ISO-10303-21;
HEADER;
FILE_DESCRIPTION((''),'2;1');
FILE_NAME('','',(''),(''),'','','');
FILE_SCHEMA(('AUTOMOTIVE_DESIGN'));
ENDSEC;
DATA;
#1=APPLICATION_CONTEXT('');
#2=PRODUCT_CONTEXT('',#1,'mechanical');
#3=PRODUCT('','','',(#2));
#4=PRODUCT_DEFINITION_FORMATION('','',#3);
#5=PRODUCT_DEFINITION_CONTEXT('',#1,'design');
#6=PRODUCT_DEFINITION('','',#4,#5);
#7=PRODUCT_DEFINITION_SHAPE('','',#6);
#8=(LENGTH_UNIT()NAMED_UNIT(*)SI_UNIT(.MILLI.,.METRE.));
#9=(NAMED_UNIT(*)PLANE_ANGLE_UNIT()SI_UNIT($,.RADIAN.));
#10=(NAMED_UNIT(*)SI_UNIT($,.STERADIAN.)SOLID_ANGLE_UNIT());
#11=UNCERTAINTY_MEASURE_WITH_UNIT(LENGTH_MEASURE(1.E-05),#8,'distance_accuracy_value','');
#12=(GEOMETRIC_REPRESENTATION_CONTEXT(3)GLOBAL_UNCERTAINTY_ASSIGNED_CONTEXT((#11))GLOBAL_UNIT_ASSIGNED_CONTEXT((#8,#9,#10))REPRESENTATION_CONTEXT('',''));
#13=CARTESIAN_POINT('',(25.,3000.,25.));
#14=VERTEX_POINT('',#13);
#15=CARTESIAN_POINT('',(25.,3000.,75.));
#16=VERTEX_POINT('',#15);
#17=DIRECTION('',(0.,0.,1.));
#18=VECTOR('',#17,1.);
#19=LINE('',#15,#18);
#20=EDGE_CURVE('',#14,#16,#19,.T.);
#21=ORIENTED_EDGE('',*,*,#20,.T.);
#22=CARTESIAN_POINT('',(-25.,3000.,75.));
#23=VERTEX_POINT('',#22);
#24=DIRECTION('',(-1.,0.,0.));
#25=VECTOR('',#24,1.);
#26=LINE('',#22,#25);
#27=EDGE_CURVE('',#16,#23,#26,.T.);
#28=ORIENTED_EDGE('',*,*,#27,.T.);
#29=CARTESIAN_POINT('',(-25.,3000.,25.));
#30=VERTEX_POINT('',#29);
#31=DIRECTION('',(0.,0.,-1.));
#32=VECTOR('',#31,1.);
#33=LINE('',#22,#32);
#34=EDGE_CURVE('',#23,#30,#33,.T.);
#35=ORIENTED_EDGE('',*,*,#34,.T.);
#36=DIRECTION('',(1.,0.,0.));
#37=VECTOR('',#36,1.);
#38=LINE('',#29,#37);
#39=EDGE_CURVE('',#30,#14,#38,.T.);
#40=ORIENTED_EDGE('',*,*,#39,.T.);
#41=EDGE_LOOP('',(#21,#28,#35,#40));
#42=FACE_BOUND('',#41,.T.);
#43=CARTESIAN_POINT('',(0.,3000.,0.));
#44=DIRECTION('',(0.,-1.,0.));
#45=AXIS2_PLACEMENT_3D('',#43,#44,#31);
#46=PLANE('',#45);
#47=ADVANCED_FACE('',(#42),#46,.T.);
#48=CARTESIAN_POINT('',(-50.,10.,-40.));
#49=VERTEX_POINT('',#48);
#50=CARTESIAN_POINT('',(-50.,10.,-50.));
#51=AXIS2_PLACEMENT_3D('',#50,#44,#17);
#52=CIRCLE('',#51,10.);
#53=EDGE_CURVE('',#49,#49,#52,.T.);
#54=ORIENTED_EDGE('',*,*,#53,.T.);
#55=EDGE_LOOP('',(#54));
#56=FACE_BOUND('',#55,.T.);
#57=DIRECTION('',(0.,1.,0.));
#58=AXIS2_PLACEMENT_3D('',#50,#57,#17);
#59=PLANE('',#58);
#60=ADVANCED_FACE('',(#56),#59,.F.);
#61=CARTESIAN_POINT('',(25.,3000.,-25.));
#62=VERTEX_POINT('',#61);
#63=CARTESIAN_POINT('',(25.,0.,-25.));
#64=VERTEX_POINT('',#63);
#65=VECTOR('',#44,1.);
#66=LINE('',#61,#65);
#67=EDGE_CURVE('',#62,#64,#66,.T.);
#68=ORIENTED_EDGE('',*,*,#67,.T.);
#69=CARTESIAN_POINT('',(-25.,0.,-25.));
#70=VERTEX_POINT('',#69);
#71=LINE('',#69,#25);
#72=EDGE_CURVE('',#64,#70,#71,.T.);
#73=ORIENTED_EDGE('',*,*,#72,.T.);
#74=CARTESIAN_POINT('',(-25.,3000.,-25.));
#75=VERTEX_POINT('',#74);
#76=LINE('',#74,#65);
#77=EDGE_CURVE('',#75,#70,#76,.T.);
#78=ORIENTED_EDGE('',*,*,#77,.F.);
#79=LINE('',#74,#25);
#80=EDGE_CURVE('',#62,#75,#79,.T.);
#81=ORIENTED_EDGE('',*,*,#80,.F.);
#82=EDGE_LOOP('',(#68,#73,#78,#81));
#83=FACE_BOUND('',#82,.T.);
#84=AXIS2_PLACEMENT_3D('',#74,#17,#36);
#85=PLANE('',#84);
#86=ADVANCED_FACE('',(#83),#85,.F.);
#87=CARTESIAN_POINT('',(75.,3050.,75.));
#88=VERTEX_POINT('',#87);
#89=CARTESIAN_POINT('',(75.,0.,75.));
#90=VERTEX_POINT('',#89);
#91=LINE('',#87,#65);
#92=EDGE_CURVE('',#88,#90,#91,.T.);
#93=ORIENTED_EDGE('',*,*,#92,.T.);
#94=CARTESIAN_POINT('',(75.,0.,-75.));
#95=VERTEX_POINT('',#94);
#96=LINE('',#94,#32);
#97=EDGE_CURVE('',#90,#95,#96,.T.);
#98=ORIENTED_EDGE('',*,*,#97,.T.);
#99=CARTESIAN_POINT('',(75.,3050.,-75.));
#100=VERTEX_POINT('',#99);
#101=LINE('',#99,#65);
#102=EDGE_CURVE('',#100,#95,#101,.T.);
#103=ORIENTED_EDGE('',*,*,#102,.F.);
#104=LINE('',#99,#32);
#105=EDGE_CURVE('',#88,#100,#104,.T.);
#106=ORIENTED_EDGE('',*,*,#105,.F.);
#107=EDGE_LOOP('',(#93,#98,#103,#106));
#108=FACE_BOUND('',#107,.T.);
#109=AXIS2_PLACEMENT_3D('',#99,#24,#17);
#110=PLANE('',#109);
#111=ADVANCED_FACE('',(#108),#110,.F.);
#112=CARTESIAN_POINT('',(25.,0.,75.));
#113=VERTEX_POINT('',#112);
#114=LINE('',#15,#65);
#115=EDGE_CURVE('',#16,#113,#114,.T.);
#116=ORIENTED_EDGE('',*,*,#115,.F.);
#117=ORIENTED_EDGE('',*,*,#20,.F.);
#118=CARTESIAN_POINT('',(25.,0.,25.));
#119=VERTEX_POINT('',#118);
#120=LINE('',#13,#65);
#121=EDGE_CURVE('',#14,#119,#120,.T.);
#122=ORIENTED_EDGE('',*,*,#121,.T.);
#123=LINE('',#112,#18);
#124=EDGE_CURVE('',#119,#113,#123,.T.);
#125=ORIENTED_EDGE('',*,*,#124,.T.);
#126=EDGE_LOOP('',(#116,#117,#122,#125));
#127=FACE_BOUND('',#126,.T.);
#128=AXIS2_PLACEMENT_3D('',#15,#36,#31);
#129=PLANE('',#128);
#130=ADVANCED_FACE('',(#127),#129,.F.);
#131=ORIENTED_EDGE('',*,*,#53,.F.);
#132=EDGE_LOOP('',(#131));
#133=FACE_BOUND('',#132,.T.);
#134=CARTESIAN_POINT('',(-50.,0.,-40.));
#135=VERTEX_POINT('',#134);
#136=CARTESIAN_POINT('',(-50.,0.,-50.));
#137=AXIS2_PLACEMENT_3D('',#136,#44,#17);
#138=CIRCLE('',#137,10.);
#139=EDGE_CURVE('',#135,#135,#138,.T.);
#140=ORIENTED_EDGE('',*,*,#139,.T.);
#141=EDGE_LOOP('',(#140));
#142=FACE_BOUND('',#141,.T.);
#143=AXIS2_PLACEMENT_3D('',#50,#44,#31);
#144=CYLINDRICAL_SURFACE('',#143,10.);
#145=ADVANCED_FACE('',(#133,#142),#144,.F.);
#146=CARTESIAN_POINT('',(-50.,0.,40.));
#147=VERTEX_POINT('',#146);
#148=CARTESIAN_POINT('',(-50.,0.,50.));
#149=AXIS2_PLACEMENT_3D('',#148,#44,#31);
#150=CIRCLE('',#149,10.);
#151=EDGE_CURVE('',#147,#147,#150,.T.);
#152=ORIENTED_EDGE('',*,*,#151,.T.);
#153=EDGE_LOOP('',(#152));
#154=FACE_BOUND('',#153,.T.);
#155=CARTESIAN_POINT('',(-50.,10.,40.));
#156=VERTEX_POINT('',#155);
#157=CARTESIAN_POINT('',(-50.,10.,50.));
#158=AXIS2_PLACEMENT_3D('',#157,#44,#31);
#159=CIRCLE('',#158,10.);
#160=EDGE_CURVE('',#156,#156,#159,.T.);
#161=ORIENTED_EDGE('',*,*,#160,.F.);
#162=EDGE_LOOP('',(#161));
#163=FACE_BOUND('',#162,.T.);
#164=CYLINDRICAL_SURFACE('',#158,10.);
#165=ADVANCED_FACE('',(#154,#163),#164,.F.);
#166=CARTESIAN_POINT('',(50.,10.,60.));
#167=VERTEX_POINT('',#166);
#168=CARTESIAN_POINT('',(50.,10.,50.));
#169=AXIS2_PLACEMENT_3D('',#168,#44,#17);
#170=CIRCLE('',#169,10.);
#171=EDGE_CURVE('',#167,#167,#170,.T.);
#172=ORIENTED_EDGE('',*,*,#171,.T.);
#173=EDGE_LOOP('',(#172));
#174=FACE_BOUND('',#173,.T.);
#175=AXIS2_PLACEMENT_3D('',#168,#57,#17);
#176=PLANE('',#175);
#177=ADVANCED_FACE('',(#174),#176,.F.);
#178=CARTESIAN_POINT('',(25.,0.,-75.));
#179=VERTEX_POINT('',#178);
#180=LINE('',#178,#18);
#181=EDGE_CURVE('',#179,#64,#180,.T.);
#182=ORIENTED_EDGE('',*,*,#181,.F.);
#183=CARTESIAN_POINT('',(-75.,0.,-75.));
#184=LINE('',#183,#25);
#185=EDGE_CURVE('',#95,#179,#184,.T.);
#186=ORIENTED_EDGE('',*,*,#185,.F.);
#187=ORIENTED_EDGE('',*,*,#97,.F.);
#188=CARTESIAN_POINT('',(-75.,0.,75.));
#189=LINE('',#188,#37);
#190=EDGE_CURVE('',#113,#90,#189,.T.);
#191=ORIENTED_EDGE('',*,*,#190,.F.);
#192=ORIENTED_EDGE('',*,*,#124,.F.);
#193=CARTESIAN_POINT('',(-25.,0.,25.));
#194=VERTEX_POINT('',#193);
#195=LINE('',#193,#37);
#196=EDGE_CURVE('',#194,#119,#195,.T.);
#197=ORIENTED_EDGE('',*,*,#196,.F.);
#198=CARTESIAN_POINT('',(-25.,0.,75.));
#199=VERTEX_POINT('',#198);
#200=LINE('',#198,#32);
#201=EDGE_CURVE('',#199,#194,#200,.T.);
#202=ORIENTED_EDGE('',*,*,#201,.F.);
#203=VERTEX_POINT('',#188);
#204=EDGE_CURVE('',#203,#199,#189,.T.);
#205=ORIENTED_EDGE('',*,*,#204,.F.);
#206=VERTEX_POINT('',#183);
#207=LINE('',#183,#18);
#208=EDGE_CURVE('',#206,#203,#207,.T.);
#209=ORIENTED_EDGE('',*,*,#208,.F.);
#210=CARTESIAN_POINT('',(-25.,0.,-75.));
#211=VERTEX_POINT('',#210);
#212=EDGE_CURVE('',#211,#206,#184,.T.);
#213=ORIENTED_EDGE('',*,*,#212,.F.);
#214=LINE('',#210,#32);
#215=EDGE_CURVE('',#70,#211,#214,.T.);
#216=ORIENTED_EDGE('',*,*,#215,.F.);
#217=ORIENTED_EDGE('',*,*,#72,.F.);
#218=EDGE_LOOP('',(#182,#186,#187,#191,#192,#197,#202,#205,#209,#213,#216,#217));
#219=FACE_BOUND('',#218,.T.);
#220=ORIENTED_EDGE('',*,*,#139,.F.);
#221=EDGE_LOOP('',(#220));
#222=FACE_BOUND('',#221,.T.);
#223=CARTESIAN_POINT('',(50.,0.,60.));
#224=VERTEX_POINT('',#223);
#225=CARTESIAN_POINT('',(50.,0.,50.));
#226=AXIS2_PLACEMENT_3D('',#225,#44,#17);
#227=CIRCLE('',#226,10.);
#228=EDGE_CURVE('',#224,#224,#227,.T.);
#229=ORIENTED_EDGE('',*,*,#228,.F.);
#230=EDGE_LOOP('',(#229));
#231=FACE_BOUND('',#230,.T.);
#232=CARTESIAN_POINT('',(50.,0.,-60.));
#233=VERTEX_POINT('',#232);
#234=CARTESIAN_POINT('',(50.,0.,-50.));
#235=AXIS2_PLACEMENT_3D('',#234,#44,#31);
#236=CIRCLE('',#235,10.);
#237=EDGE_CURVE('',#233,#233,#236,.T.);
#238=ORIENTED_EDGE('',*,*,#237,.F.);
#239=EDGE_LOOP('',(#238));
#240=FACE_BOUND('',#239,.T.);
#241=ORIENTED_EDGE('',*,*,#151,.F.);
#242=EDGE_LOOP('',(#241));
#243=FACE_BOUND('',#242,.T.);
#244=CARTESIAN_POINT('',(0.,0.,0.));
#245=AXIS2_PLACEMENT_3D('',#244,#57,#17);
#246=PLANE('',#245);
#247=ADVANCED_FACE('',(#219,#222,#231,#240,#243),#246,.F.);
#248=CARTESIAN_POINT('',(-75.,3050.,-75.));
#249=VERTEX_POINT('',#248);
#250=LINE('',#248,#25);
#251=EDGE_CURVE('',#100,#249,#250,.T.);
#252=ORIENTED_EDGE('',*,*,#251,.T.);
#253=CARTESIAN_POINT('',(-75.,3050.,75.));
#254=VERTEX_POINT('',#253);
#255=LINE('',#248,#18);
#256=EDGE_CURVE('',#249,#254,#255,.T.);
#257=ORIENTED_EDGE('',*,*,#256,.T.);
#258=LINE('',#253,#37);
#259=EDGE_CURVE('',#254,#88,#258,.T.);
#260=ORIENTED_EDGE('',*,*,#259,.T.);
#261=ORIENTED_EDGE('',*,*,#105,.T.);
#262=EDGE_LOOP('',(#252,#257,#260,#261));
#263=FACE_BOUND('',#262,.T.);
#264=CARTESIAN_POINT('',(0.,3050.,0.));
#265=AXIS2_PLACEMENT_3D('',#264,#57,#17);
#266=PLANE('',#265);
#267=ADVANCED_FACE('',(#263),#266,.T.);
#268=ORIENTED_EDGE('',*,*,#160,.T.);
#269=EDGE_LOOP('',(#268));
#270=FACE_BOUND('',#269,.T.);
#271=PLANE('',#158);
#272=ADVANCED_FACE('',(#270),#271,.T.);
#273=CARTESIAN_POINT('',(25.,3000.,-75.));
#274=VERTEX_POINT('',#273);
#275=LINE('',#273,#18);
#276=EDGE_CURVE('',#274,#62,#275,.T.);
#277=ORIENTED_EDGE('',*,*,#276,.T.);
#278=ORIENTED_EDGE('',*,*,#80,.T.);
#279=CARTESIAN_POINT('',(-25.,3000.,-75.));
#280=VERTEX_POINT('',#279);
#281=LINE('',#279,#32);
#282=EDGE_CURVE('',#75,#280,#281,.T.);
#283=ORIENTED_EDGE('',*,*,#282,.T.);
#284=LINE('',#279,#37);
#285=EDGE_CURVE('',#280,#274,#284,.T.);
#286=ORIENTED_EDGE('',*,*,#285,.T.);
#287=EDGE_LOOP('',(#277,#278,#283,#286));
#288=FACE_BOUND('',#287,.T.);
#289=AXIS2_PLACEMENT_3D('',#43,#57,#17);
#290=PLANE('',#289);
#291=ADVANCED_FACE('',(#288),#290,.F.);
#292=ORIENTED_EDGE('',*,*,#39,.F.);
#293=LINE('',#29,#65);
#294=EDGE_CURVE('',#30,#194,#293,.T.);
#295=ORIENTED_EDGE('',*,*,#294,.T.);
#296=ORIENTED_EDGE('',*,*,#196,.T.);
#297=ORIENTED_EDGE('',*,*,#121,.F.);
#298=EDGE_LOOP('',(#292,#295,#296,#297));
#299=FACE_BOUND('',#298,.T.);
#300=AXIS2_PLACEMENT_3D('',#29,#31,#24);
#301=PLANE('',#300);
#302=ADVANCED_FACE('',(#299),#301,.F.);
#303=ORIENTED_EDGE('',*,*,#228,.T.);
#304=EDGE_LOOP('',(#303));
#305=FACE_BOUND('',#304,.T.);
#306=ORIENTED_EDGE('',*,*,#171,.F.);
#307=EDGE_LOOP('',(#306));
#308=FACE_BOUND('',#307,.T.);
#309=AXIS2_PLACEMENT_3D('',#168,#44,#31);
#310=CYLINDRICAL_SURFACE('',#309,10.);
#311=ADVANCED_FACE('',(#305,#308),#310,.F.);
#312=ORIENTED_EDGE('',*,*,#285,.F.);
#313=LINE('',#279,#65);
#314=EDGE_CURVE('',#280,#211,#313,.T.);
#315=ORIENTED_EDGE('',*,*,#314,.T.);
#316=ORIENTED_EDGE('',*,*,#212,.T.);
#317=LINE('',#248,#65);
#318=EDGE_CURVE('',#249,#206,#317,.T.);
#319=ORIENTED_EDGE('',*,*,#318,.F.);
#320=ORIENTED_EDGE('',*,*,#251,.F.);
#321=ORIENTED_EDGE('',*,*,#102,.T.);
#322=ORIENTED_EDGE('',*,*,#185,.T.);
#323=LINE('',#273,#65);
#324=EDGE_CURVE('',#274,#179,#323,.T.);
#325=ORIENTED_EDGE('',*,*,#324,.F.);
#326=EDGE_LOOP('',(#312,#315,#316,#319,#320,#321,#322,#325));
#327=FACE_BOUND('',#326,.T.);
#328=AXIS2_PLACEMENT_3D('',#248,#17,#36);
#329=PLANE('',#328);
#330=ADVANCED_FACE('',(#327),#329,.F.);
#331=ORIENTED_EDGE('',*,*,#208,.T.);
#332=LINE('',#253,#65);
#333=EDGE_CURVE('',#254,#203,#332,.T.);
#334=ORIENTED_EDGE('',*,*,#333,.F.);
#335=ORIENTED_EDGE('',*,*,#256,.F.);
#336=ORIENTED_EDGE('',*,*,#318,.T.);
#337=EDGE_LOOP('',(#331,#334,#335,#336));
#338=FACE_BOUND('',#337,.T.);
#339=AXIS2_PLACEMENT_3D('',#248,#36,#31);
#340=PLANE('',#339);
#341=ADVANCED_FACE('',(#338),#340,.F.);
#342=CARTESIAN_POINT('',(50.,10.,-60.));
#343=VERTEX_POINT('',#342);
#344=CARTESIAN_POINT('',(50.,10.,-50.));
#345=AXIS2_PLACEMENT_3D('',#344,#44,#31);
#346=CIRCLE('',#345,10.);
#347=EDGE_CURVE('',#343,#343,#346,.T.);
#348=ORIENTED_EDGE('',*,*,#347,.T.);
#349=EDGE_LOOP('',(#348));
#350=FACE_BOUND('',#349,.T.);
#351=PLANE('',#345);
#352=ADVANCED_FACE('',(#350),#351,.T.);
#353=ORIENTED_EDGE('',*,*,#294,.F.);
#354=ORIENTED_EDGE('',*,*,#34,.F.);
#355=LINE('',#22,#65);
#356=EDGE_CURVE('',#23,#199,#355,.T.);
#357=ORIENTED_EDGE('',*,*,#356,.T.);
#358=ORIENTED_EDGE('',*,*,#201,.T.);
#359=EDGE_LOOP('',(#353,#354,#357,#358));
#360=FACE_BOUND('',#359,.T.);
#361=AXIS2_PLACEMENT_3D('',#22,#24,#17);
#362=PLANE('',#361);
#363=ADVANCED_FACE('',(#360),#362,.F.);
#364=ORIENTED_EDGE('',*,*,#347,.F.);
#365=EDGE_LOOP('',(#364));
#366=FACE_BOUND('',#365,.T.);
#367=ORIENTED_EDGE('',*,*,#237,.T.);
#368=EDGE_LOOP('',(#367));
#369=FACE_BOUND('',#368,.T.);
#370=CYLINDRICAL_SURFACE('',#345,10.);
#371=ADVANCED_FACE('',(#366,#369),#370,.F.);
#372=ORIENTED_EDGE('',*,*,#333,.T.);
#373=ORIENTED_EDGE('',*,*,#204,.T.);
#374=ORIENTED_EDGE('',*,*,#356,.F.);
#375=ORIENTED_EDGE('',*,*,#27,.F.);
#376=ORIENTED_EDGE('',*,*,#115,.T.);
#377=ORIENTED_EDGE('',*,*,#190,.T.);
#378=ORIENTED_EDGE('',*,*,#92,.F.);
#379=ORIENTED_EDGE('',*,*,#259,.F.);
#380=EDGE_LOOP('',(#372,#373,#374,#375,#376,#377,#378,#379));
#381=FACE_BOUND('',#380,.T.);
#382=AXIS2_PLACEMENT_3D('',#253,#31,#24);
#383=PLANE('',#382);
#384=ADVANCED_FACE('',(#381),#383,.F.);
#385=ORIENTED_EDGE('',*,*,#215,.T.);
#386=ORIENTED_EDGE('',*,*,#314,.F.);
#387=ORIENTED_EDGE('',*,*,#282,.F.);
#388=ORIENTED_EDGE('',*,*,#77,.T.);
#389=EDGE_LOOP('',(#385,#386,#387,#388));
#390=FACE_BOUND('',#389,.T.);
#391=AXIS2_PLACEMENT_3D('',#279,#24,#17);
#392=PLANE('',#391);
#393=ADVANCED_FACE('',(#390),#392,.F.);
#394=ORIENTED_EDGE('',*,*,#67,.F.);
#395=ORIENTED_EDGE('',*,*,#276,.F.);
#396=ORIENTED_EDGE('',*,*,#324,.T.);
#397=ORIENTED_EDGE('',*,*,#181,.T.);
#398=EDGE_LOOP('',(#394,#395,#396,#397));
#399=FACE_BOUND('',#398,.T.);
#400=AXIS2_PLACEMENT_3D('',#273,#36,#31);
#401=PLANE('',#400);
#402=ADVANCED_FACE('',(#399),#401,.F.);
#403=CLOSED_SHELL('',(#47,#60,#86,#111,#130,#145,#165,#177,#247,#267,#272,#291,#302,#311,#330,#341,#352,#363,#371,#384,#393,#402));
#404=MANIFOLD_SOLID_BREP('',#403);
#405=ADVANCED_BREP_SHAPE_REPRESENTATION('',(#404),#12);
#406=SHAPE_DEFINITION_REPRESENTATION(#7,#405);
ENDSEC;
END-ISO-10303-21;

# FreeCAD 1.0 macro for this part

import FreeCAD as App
import Part
import Sketcher
from FreeCAD import Vector
Q = App.Units.Quantity

doc = App.newDocument("Part")
body = doc.addObject("PartDesign::Body", "Body")

# Sketch on XZ plane
sketch1 = body.newObject("Sketcher::SketchObject", "Sketch")
sketch1.AttachmentSupport = (doc.getObject("XZ_Plane"), [""])
sketch1.MapMode = "FlatFace"
sketch1.addGeometry(Part.LineSegment(Vector(-75, -75, 0), Vector(-75, 75, 0)), False)
sketch1.addGeometry(Part.LineSegment(Vector(-75, 75, 0), Vector(75, 75, 0)), False)
sketch1.addGeometry(Part.LineSegment(Vector(75, 75, 0), Vector(75, -75, 0)), False)
sketch1.addGeometry(Part.LineSegment(Vector(75, -75, 0), Vector(-75, -75, 0)), False)
sketch1.addConstraint(Sketcher.Constraint("Coincident", 0, 2, 1, 1))
sketch1.addConstraint(Sketcher.Constraint("Coincident", 1, 2, 2, 1))
sketch1.addConstraint(Sketcher.Constraint("Coincident", 2, 2, 3, 1))
sketch1.addConstraint(Sketcher.Constraint("Coincident", 3, 2, 0, 1))
sketch1.addConstraint(Sketcher.Constraint("Vertical", 0))
sketch1.addConstraint(Sketcher.Constraint("Horizontal", 1))
sketch1.addConstraint(Sketcher.Constraint("Vertical", 2))
sketch1.addConstraint(Sketcher.Constraint("Horizontal", 3))
sketch1.addConstraint(Sketcher.Constraint("Symmetric", 0, 2, 2, 2, -1, 1))
sketch1.addConstraint(Sketcher.Constraint("Equal", 3, 0))
sketch1.addConstraint(Sketcher.Constraint("DistanceX", 1, 1, 1, 2, Q("150 mm")))
pad1 = body.newObject("PartDesign::Pad", "Pad")
pad1.Profile = sketch1
pad1.Length = 3050
pad1.Reversed = True

# Sketch on XZ plane
sketch2 = body.newObject("Sketcher::SketchObject", "Sketch001")
sketch2.AttachmentSupport = (doc.getObject("XZ_Plane"), [""])
sketch2.MapMode = "FlatFace"
sketch2.addGeometry(Part.LineSegment(Vector(-25, 75, 0), Vector(-25, 25, 0)), False)
sketch2.addGeometry(Part.LineSegment(Vector(-25, 25, 0), Vector(25, 25, 0)), False)
sketch2.addGeometry(Part.LineSegment(Vector(25, 25, 0), Vector(25, 75, 0)), False)
sketch2.addGeometry(Part.LineSegment(Vector(25, 75, 0), Vector(-25, 75, 0)), False)
sketch2.addGeometry(Part.LineSegment(Vector(-25, -25, 0), Vector(-25, -75, 0)), False)
sketch2.addGeometry(Part.LineSegment(Vector(-25, -75, 0), Vector(25, -75, 0)), False)
sketch2.addGeometry(Part.LineSegment(Vector(25, -75, 0), Vector(25, -25, 0)), False)
sketch2.addGeometry(Part.LineSegment(Vector(25, -25, 0), Vector(-25, -25, 0)), False)
sketch2.addConstraint(Sketcher.Constraint("Coincident", 0, 2, 1, 1))
sketch2.addConstraint(Sketcher.Constraint("Coincident", 1, 2, 2, 1))
sketch2.addConstraint(Sketcher.Constraint("Coincident", 2, 2, 3, 1))
sketch2.addConstraint(Sketcher.Constraint("Coincident", 3, 2, 0, 1))
sketch2.addConstraint(Sketcher.Constraint("Coincident", 4, 2, 5, 1))
sketch2.addConstraint(Sketcher.Constraint("Coincident", 5, 2, 6, 1))
sketch2.addConstraint(Sketcher.Constraint("Coincident", 6, 2, 7, 1))
sketch2.addConstraint(Sketcher.Constraint("Coincident", 7, 2, 4, 1))
sketch2.addConstraint(Sketcher.Constraint("Vertical", 0))
sketch2.addConstraint(Sketcher.Constraint("Horizontal", 1))
sketch2.addConstraint(Sketcher.Constraint("Vertical", 2))
sketch2.addConstraint(Sketcher.Constraint("Horizontal", 3))
sketch2.addConstraint(Sketcher.Constraint("Vertical", 4))
sketch2.addConstraint(Sketcher.Constraint("Horizontal", 5))
sketch2.addConstraint(Sketcher.Constraint("Vertical", 6))
sketch2.addConstraint(Sketcher.Constraint("Horizontal", 7))
sketch2.addConstraint(Sketcher.Constraint("Symmetric", 2, 2, 4, 2, -1, 1))
sketch2.addConstraint(Sketcher.Constraint("Symmetric", 0, 2, 6, 2, -1, 1))
sketch2.addConstraint(Sketcher.Constraint("Vertical", 3, 2, 4, 2))
sketch2.addConstraint(Sketcher.Constraint("Equal", 7, 0))
sketch2.addConstraint(Sketcher.Constraint("DistanceX", 1, 1, 1, 2, Q("50 mm")))
sketch2.addConstraint(Sketcher.Constraint("DistanceY", -1, 1, 0, 2, Q("25 mm")))
pocket1 = body.newObject("PartDesign::Pocket", "Pocket")
pocket1.Profile = sketch2
pocket1.Length = 3000

# Sketch on XZ plane
sketch3 = body.newObject("Sketcher::SketchObject", "Sketch002")
sketch3.AttachmentSupport = (doc.getObject("XZ_Plane"), [""])
sketch3.MapMode = "FlatFace"
sketch3.addGeometry(Part.Circle(Vector(-50, 50, 0), Vector(0, 0, 1), 10), False)
sketch3.addGeometry(Part.Circle(Vector(50, 50, 0), Vector(0, 0, 1), 10), False)
sketch3.addGeometry(Part.Circle(Vector(50, -50, 0), Vector(0, 0, 1), 10), False)
sketch3.addGeometry(Part.Circle(Vector(-50, -50, 0), Vector(0, 0, 1), 10), False)
sketch3.addConstraint(Sketcher.Constraint("Equal", 0, 1))
sketch3.addConstraint(Sketcher.Constraint("Equal", 1, 2))
sketch3.addConstraint(Sketcher.Constraint("Equal", 2, 3))
sketch3.addConstraint(Sketcher.Constraint("Symmetric", 0, 3, 2, 3, -1, 1))
sketch3.addConstraint(Sketcher.Constraint("Symmetric", 1, 3, 3, 3, -1, 1))
sketch3.addConstraint(Sketcher.Constraint("Symmetric", 0, 3, 1, 3, -2))
sketch3.addConstraint(Sketcher.Constraint("Diameter", 0, Q("20 mm")))
sketch3.addConstraint(Sketcher.Constraint("DistanceX", 0, 3, -1, 1, Q("50 mm")))
sketch3.addConstraint(Sketcher.Constraint("DistanceY", -1, 1, 0, 3, Q("50 mm")))
pocket2 = body.newObject("PartDesign::Pocket", "Pocket001")
pocket2.Profile = sketch3
pocket2.Length = 10

doc.recompute()
